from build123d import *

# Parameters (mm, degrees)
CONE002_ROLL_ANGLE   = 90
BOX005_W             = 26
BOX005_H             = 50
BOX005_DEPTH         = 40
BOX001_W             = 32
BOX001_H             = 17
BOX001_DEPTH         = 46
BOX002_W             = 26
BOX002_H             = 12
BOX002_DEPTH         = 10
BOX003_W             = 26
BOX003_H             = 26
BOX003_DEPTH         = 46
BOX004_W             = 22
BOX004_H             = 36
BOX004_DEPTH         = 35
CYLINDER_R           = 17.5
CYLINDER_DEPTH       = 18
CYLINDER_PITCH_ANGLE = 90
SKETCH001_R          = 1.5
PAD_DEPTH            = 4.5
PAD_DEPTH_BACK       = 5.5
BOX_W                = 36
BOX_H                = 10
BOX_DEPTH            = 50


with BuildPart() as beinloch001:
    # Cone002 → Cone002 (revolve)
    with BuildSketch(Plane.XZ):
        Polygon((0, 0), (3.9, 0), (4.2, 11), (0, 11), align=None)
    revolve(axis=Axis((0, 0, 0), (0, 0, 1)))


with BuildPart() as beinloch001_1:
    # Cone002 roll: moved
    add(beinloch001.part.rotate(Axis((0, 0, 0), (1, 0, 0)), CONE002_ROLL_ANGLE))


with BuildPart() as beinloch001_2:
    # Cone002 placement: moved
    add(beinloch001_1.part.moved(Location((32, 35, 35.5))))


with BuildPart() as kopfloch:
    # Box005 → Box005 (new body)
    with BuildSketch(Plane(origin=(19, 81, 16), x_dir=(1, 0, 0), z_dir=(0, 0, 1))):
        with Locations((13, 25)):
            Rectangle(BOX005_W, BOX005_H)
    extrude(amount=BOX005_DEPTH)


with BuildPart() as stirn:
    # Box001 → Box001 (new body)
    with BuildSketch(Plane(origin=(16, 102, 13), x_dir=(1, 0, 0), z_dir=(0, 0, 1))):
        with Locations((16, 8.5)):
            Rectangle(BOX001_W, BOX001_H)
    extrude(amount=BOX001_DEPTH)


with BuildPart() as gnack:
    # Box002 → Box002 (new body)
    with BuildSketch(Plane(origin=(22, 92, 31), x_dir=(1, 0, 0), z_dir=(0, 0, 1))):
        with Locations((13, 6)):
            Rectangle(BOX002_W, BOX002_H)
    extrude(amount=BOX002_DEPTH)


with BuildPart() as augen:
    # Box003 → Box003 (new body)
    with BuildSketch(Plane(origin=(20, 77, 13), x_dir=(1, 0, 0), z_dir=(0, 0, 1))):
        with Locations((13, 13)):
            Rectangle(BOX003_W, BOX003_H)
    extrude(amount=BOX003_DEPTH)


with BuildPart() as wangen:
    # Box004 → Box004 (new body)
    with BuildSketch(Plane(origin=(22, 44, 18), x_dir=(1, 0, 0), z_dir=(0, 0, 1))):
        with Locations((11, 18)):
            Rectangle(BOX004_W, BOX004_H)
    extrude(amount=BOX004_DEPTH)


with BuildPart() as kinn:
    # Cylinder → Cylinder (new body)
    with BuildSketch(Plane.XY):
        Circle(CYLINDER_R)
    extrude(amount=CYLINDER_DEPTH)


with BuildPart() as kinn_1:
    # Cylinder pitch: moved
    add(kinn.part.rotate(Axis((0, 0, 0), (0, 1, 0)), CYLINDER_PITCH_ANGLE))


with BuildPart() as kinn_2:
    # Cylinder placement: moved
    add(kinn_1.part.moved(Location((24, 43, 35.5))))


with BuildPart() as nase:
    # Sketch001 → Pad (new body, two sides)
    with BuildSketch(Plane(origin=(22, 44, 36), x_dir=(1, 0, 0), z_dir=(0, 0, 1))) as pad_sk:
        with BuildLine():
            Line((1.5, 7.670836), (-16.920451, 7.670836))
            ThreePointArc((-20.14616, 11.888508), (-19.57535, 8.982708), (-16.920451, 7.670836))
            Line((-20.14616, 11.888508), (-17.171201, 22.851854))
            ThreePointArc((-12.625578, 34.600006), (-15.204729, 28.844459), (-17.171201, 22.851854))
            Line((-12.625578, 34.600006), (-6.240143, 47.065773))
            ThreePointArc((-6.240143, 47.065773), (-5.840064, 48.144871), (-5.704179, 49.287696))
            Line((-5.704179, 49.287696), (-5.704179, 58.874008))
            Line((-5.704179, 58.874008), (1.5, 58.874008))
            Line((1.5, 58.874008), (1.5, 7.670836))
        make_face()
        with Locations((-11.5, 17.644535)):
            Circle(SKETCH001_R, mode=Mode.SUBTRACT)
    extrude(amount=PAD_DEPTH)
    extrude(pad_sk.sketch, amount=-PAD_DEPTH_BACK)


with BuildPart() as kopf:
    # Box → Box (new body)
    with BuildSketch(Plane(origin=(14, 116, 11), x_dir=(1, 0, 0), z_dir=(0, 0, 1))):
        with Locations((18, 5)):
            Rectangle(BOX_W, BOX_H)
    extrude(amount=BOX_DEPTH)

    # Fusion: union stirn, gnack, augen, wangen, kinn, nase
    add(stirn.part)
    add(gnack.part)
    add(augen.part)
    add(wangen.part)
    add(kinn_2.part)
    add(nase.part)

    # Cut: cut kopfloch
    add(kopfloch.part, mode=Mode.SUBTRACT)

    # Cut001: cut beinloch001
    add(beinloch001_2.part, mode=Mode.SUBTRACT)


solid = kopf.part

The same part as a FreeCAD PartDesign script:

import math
import FreeCAD as App
import Part
import Sketcher

doc = App.newDocument("Part")
params = doc.addObject("Spreadsheet::Sheet", "Params")
for row, (alias, value) in enumerate([
    ("sketch1_height", "11 mm"),
    ("sketch1_width", "3.9 mm"),
    ("sketch1_width2", "4.2 mm"),
    ("revolution_angle", "360 deg"),
    ("sketch2_width", "26 mm"),
    ("sketch2_height", "50 mm"),
    ("pad1_length", "40 mm"),
    ("sketch3_width", "32 mm"),
    ("sketch3_height", "17 mm"),
    ("pad2_length", "46 mm"),
    ("sketch4_width", "26 mm"),
    ("sketch4_height", "12 mm"),
    ("pad3_length", "10 mm"),
    ("sketch5_width", "26 mm"),
    ("pad4_length", "46 mm"),
    ("sketch6_width", "22 mm"),
    ("sketch6_height", "36 mm"),
    ("pad5_length", "35 mm"),
    ("sketch7_diameter", "35 mm"),
    ("pad6_length", "18 mm"),
    ("sketch8_diameter", "3 mm"),
    ("pad7_length", "4.5 mm"),
    ("pad7_length2", "5.5 mm"),
    ("sketch9_width", "36 mm"),
    ("sketch9_height", "10 mm"),
    ("pad8_length", "50 mm"),
], start=1):
    params.set(f"A{row}", alias)
    params.set(f"B{row}", "=" + value)
    params.setAlias(f"B{row}", alias)

body = doc.addObject("PartDesign::Body", "Body")

sketch1 = body.newObject("Sketcher::SketchObject", "Sketch")
sketch1.AttachmentSupport = (doc.getObject("XZ_Plane"), [""])
sketch1.MapMode = "FlatFace"
sketch1.addGeometry(Part.LineSegment(App.Vector(0, 0, 0), App.Vector(3.9, 0, 0)), False)
sketch1.addGeometry(Part.LineSegment(App.Vector(3.9, 0, 0), App.Vector(4.2, 11, 0)), False)
sketch1.addGeometry(Part.LineSegment(App.Vector(4.2, 11, 0), App.Vector(0, 11, 0)), False)
sketch1.addGeometry(Part.LineSegment(App.Vector(0, 11, 0), App.Vector(0, 0, 0)), False)
sketch1.addConstraint(Sketcher.Constraint("Coincident", 0, 2, 1, 1))
sketch1.addConstraint(Sketcher.Constraint("Coincident", 1, 2, 2, 1))
sketch1.addConstraint(Sketcher.Constraint("Coincident", 2, 2, 3, 1))
sketch1.addConstraint(Sketcher.Constraint("Coincident", 3, 2, 0, 1))
sketch1.addConstraint(Sketcher.Constraint("Horizontal", 0))
sketch1.addConstraint(Sketcher.Constraint("Horizontal", 2))
sketch1.addConstraint(Sketcher.Constraint("Vertical", 3))
sketch1.addConstraint(Sketcher.Constraint("Coincident", 3, 2, -1, 1))
sketch1.addConstraint(Sketcher.Constraint("DistanceY", 3, 2, 3, 1, 11.0))
sketch1.addConstraint(Sketcher.Constraint("DistanceX", 0, 1, 0, 2, 3.9))
sketch1.addConstraint(Sketcher.Constraint("DistanceX", 2, 2, 2, 1, 4.2))
sketch1.setExpression("Constraints[8]", "Params.sketch1_height")
sketch1.setExpression("Constraints[9]", "Params.sketch1_width")
sketch1.setExpression("Constraints[10]", "Params.sketch1_width2")
revolution = body.newObject("PartDesign::Revolution", "Revolution")
revolution.Profile = sketch1
revolution.ReferenceAxis = (sketch1, ["V_Axis"])
revolution.setExpression("Angle", "Params.revolution_angle")
body2 = doc.addObject("PartDesign::Body", "Body001")
doc.recompute()

body.Placement = App.Placement(App.Vector(0, 0, 0), App.Rotation(App.Vector(1, 0, 0), 90))
boolean = body2.newObject("PartDesign::Boolean", "Boolean")
boolean.Type = "Fuse"
boolean.addObjects([body])
body3 = doc.addObject("PartDesign::Body", "Body002")
doc.recompute()

body2.Placement = App.Placement(App.Vector(32, 35, 35.5), App.Rotation(App.Vector(0, 0, 1), 0))
boolean2 = body3.newObject("PartDesign::Boolean", "Boolean001")
boolean2.Type = "Fuse"
boolean2.addObjects([body2])
body4 = doc.addObject("PartDesign::Body", "Body003")

sketch2 = body4.newObject("Sketcher::SketchObject", "Sketch001")
sketch2.AttachmentSupport = (doc.getObject("XY_Plane003"), [""])
sketch2.MapMode = "FlatFace"
sketch2.AttachmentOffset = App.Placement(App.Vector(0, 0, 16), App.Rotation())
sketch2.addGeometry(Part.LineSegment(App.Vector(19, 131, 0), App.Vector(19, 81, 0)), False)
sketch2.addGeometry(Part.LineSegment(App.Vector(19, 81, 0), App.Vector(45, 81, 0)), False)
sketch2.addGeometry(Part.LineSegment(App.Vector(45, 81, 0), App.Vector(45, 131, 0)), False)
sketch2.addGeometry(Part.LineSegment(App.Vector(45, 131, 0), App.Vector(19, 131, 0)), False)
sketch2.addConstraint(Sketcher.Constraint("Coincident", 0, 2, 1, 1))
sketch2.addConstraint(Sketcher.Constraint("Coincident", 1, 2, 2, 1))
sketch2.addConstraint(Sketcher.Constraint("Coincident", 2, 2, 3, 1))
sketch2.addConstraint(Sketcher.Constraint("Coincident", 3, 2, 0, 1))
sketch2.addConstraint(Sketcher.Constraint("Vertical", 0))
sketch2.addConstraint(Sketcher.Constraint("Horizontal", 1))
sketch2.addConstraint(Sketcher.Constraint("Vertical", 2))
sketch2.addConstraint(Sketcher.Constraint("Horizontal", 3))
sketch2.addConstraint(Sketcher.Constraint("DistanceX", 1, 1, 1, 2, 26.0))
sketch2.addConstraint(Sketcher.Constraint("DistanceY", 0, 2, 0, 1, 50.0))
sketch2.addConstraint(Sketcher.Constraint("DistanceX", -1, 1, 0, 2, 19.0))
sketch2.addConstraint(Sketcher.Constraint("DistanceY", -1, 1, 0, 2, 81.0))
sketch2.setExpression("Constraints[8]", "Params.sketch2_width")
sketch2.setExpression("Constraints[9]", "Params.sketch2_height")
pad1 = body4.newObject("PartDesign::Pad", "Pad")
pad1.Profile = sketch2
pad1.setExpression("Length", "Params.pad1_length")
body5 = doc.addObject("PartDesign::Body", "Body004")

sketch3 = body5.newObject("Sketcher::SketchObject", "Sketch002")
sketch3.AttachmentSupport = (doc.getObject("XY_Plane004"), [""])
sketch3.MapMode = "FlatFace"
sketch3.AttachmentOffset = App.Placement(App.Vector(0, 0, 13), App.Rotation())
sketch3.addGeometry(Part.LineSegment(App.Vector(16, 119, 0), App.Vector(16, 102, 0)), False)
sketch3.addGeometry(Part.LineSegment(App.Vector(16, 102, 0), App.Vector(48, 102, 0)), False)
sketch3.addGeometry(Part.LineSegment(App.Vector(48, 102, 0), App.Vector(48, 119, 0)), False)
sketch3.addGeometry(Part.LineSegment(App.Vector(48, 119, 0), App.Vector(16, 119, 0)), False)
sketch3.addConstraint(Sketcher.Constraint("Coincident", 0, 2, 1, 1))
sketch3.addConstraint(Sketcher.Constraint("Coincident", 1, 2, 2, 1))
sketch3.addConstraint(Sketcher.Constraint("Coincident", 2, 2, 3, 1))
sketch3.addConstraint(Sketcher.Constraint("Coincident", 3, 2, 0, 1))
sketch3.addConstraint(Sketcher.Constraint("Vertical", 0))
sketch3.addConstraint(Sketcher.Constraint("Horizontal", 1))
sketch3.addConstraint(Sketcher.Constraint("Vertical", 2))
sketch3.addConstraint(Sketcher.Constraint("Horizontal", 3))
sketch3.addConstraint(Sketcher.Constraint("DistanceX", 1, 1, 1, 2, 32.0))
sketch3.addConstraint(Sketcher.Constraint("DistanceY", 0, 2, 0, 1, 17.0))
sketch3.addConstraint(Sketcher.Constraint("DistanceX", -1, 1, 0, 2, 16.0))
sketch3.addConstraint(Sketcher.Constraint("DistanceY", -1, 1, 0, 2, 102.0))
sketch3.setExpression("Constraints[8]", "Params.sketch3_width")
sketch3.setExpression("Constraints[9]", "Params.sketch3_height")
pad2 = body5.newObject("PartDesign::Pad", "Pad001")
pad2.Profile = sketch3
pad2.setExpression("Length", "Params.pad2_length")
body6 = doc.addObject("PartDesign::Body", "Body005")

sketch4 = body6.newObject("Sketcher::SketchObject", "Sketch003")
sketch4.AttachmentSupport = (doc.getObject("XY_Plane005"), [""])
sketch4.MapMode = "FlatFace"
sketch4.AttachmentOffset = App.Placement(App.Vector(0, 0, 31), App.Rotation())
sketch4.addGeometry(Part.LineSegment(App.Vector(22, 104, 0), App.Vector(22, 92, 0)), False)
sketch4.addGeometry(Part.LineSegment(App.Vector(22, 92, 0), App.Vector(48, 92, 0)), False)
sketch4.addGeometry(Part.LineSegment(App.Vector(48, 92, 0), App.Vector(48, 104, 0)), False)
sketch4.addGeometry(Part.LineSegment(App.Vector(48, 104, 0), App.Vector(22, 104, 0)), False)
sketch4.addConstraint(Sketcher.Constraint("Coincident", 0, 2, 1, 1))
sketch4.addConstraint(Sketcher.Constraint("Coincident", 1, 2, 2, 1))
sketch4.addConstraint(Sketcher.Constraint("Coincident", 2, 2, 3, 1))
sketch4.addConstraint(Sketcher.Constraint("Coincident", 3, 2, 0, 1))
sketch4.addConstraint(Sketcher.Constraint("Vertical", 0))
sketch4.addConstraint(Sketcher.Constraint("Horizontal", 1))
sketch4.addConstraint(Sketcher.Constraint("Vertical", 2))
sketch4.addConstraint(Sketcher.Constraint("Horizontal", 3))
sketch4.addConstraint(Sketcher.Constraint("DistanceX", 1, 1, 1, 2, 26.0))
sketch4.addConstraint(Sketcher.Constraint("DistanceY", 0, 2, 0, 1, 12.0))
sketch4.addConstraint(Sketcher.Constraint("DistanceX", -1, 1, 0, 2, 22.0))
sketch4.addConstraint(Sketcher.Constraint("DistanceY", -1, 1, 0, 2, 92.0))
sketch4.setExpression("Constraints[8]", "Params.sketch4_width")
sketch4.setExpression("Constraints[9]", "Params.sketch4_height")
pad3 = body6.newObject("PartDesign::Pad", "Pad002")
pad3.Profile = sketch4
pad3.setExpression("Length", "Params.pad3_length")
body7 = doc.addObject("PartDesign::Body", "Body006")

sketch5 = body7.newObject("Sketcher::SketchObject", "Sketch004")
sketch5.AttachmentSupport = (doc.getObject("XY_Plane006"), [""])
sketch5.MapMode = "FlatFace"
sketch5.AttachmentOffset = App.Placement(App.Vector(0, 0, 13), App.Rotation())
sketch5.addGeometry(Part.LineSegment(App.Vector(20, 103, 0), App.Vector(20, 77, 0)), False)
sketch5.addGeometry(Part.LineSegment(App.Vector(20, 77, 0), App.Vector(46, 77, 0)), False)
sketch5.addGeometry(Part.LineSegment(App.Vector(46, 77, 0), App.Vector(46, 103, 0)), False)
sketch5.addGeometry(Part.LineSegment(App.Vector(46, 103, 0), App.Vector(20, 103, 0)), False)
sketch5.addConstraint(Sketcher.Constraint("Coincident", 0, 2, 1, 1))
sketch5.addConstraint(Sketcher.Constraint("Coincident", 1, 2, 2, 1))
sketch5.addConstraint(Sketcher.Constraint("Coincident", 2, 2, 3, 1))
sketch5.addConstraint(Sketcher.Constraint("Coincident", 3, 2, 0, 1))
sketch5.addConstraint(Sketcher.Constraint("Vertical", 0))
sketch5.addConstraint(Sketcher.Constraint("Horizontal", 1))
sketch5.addConstraint(Sketcher.Constraint("Vertical", 2))
sketch5.addConstraint(Sketcher.Constraint("Horizontal", 3))
sketch5.addConstraint(Sketcher.Constraint("Equal", 3, 0))
sketch5.addConstraint(Sketcher.Constraint("DistanceX", 1, 1, 1, 2, 26.0))
sketch5.addConstraint(Sketcher.Constraint("DistanceX", -1, 1, 0, 2, 20.0))
sketch5.addConstraint(Sketcher.Constraint("DistanceY", -1, 1, 0, 2, 77.0))
sketch5.setExpression("Constraints[9]", "Params.sketch5_width")
pad4 = body7.newObject("PartDesign::Pad", "Pad003")
pad4.Profile = sketch5
pad4.setExpression("Length", "Params.pad4_length")
body8 = doc.addObject("PartDesign::Body", "Body007")

sketch6 = body8.newObject("Sketcher::SketchObject", "Sketch005")
sketch6.AttachmentSupport = (doc.getObject("XY_Plane007"), [""])
sketch6.MapMode = "FlatFace"
sketch6.AttachmentOffset = App.Placement(App.Vector(0, 0, 18), App.Rotation())
sketch6.addGeometry(Part.LineSegment(App.Vector(22, 80, 0), App.Vector(22, 44, 0)), False)
sketch6.addGeometry(Part.LineSegment(App.Vector(22, 44, 0), App.Vector(44, 44, 0)), False)
sketch6.addGeometry(Part.LineSegment(App.Vector(44, 44, 0), App.Vector(44, 80, 0)), False)
sketch6.addGeometry(Part.LineSegment(App.Vector(44, 80, 0), App.Vector(22, 80, 0)), False)
sketch6.addConstraint(Sketcher.Constraint("Coincident", 0, 2, 1, 1))
sketch6.addConstraint(Sketcher.Constraint("Coincident", 1, 2, 2, 1))
sketch6.addConstraint(Sketcher.Constraint("Coincident", 2, 2, 3, 1))
sketch6.addConstraint(Sketcher.Constraint("Coincident", 3, 2, 0, 1))
sketch6.addConstraint(Sketcher.Constraint("Vertical", 0))
sketch6.addConstraint(Sketcher.Constraint("Horizontal", 1))
sketch6.addConstraint(Sketcher.Constraint("Vertical", 2))
sketch6.addConstraint(Sketcher.Constraint("Horizontal", 3))
sketch6.addConstraint(Sketcher.Constraint("DistanceX", 1, 1, 1, 2, 22.0))
sketch6.addConstraint(Sketcher.Constraint("DistanceY", 0, 2, 0, 1, 36.0))
sketch6.addConstraint(Sketcher.Constraint("DistanceX", -1, 1, 0, 2, 22.0))
sketch6.addConstraint(Sketcher.Constraint("DistanceY", -1, 1, 0, 2, 44.0))
sketch6.setExpression("Constraints[8]", "Params.sketch6_width")
sketch6.setExpression("Constraints[9]", "Params.sketch6_height")
pad5 = body8.newObject("PartDesign::Pad", "Pad004")
pad5.Profile = sketch6
pad5.setExpression("Length", "Params.pad5_length")
body9 = doc.addObject("PartDesign::Body", "Body008")

sketch7 = body9.newObject("Sketcher::SketchObject", "Sketch006")
sketch7.AttachmentSupport = (doc.getObject("XY_Plane008"), [""])
sketch7.MapMode = "FlatFace"
sketch7.addGeometry(Part.Circle(App.Vector(0, 0, 0), App.Vector(0, 0, 1), 17.5), False)
sketch7.addConstraint(Sketcher.Constraint("Coincident", 0, 3, -1, 1))
sketch7.addConstraint(Sketcher.Constraint("Diameter", 0, 35.0))
sketch7.setExpression("Constraints[1]", "Params.sketch7_diameter")
pad6 = body9.newObject("PartDesign::Pad", "Pad005")
pad6.Profile = sketch7
pad6.setExpression("Length", "Params.pad6_length")
body10 = doc.addObject("PartDesign::Body", "Body009")
doc.recompute()

body9.Placement = App.Placement(App.Vector(0, 0, 0), App.Rotation(App.Vector(0, 1, 0), 90))
boolean3 = body10.newObject("PartDesign::Boolean", "Boolean002")
boolean3.Type = "Fuse"
boolean3.addObjects([body9])
body11 = doc.addObject("PartDesign::Body", "Body010")
doc.recompute()

body10.Placement = App.Placement(App.Vector(24, 43, 35.5), App.Rotation(App.Vector(0, 0, 1), 0))
boolean4 = body11.newObject("PartDesign::Boolean", "Boolean003")
boolean4.Type = "Fuse"
boolean4.addObjects([body10])
body12 = doc.addObject("PartDesign::Body", "Body011")

sketch8 = body12.newObject("Sketcher::SketchObject", "Sketch007")
sketch8.AttachmentSupport = (doc.getObject("XY_Plane011"), [""])
sketch8.MapMode = "FlatFace"
sketch8.AttachmentOffset = App.Placement(App.Vector(0, 0, 36), App.Rotation())
sketch8.addGeometry(Part.LineSegment(App.Vector(5.079549, 51.670836, 0), App.Vector(23.5, 51.670836, 0)), False)
sketch8.addGeometry(Part.LineSegment(App.Vector(23.5, 51.670836, 0), App.Vector(23.5, 102.874008, 0)), False)
sketch8.addGeometry(Part.LineSegment(App.Vector(23.5, 102.874008, 0), App.Vector(16.295821, 102.874008, 0)), False)
sketch8.addGeometry(Part.LineSegment(App.Vector(16.295821, 102.874008, 0), App.Vector(16.295821, 93.287696, 0)), False)
sketch8.addGeometry(Part.ArcOfCircle(Part.Circle(App.Vector(11.422183, 93.287694, 0), App.Vector(0, 0, 1), 4.873638), math.radians(-27.12324), math.radians(0.000026)), False)
sketch8.addGeometry(Part.LineSegment(App.Vector(15.759857, 91.065773, 0), App.Vector(9.374422, 78.600006, 0)), False)
sketch8.addGeometry(Part.ArcOfCircle(Part.Circle(App.Vector(63.266336, 50.99454, 0), App.Vector(0, 0, 1), 60.550807), math.radians(152.876768), math.radians(164.818093)), False)
sketch8.addGeometry(Part.LineSegment(App.Vector(4.828799, 66.851854, 0), App.Vector(1.85384, 55.888508, 0)), False)
sketch8.addGeometry(Part.ArcOfCircle(Part.Circle(App.Vector(5.079549, 55.013196, 0), App.Vector(0, 0, 1), 3.34236), math.radians(164.818092), math.radians(270)), False)
sketch8.addGeometry(Part.Circle(App.Vector(10.5, 61.644535, 0), App.Vector(0, 0, 1), 1.5), False)
sketch8.addConstraint(Sketcher.Constraint("Coincident", 0, 2, 1, 1))
sketch8.addConstraint(Sketcher.Constraint("Coincident", 1, 2, 2, 1))
sketch8.addConstraint(Sketcher.Constraint("Coincident", 2, 2, 3, 1))
sketch8.addConstraint(Sketcher.Constraint("Tangent", 3, 2, 4, 2))
sketch8.addConstraint(Sketcher.Constraint("Tangent", 4, 1, 5, 1))
sketch8.addConstraint(Sketcher.Constraint("Tangent", 5, 2, 6, 1))
sketch8.addConstraint(Sketcher.Constraint("Tangent", 6, 2, 7, 1))
sketch8.addConstraint(Sketcher.Constraint("Tangent", 7, 2, 8, 1))
sketch8.addConstraint(Sketcher.Constraint("Tangent", 8, 2, 0, 1))
sketch8.addConstraint(Sketcher.Constraint("Horizontal", 0))
sketch8.addConstraint(Sketcher.Constraint("Vertical", 1))
sketch8.addConstraint(Sketcher.Constraint("Horizontal", 2))
sketch8.addConstraint(Sketcher.Constraint("Vertical", 3))
sketch8.addConstraint(Sketcher.Constraint("Diameter", 9, 3.0))
sketch8.addConstraint(Sketcher.Constraint("DistanceX", 9, 3, 0, 2, 13.0))
sketch8.addConstraint(Sketcher.Constraint("DistanceX", -1, 1, 9, 3, 10.5))
sketch8.addConstraint(Sketcher.Constraint("Radius", 4, 4.873638))
sketch8.addConstraint(Sketcher.Constraint("Radius", 8, 3.34236))
sketch8.addConstraint(Sketcher.Constraint("Radius", 6, 60.550807))
sketch8.addConstraint(Sketcher.Constraint("DistanceX", 0, 1, 0, 2, 18.420451))
sketch8.addConstraint(Sketcher.Constraint("DistanceX", 2, 2, 2, 1, 7.204179))
sketch8.addConstraint(Sketcher.Constraint("DistanceX", -1, 1, 6, 2, 4.828799))
sketch8.addConstraint(Sketcher.Constraint("DistanceY", 0, 2, 9, 3, 9.973699))
sketch8.addConstraint(Sketcher.Constraint("DistanceY", 8, 3, 3, 2, 38.2745))
sketch8.addConstraint(Sketcher.Constraint("DistanceX", 5, 2, 3, 2, 6.921399))
sketch8.addConstraint(Sketcher.Constraint("DistanceY", 1, 1, 1, 2, 51.203172))
sketch8.addConstraint(Sketcher.Constraint("DistanceY", -1, 1, 6, 3, 50.99454))
sketch8.setExpression("Constraints[13]", "Params.sketch8_diameter")
pad7 = body12.newObject("PartDesign::Pad", "Pad006")
pad7.Profile = sketch8
pad7.Type = "TwoLengths"
pad7.setExpression("Length", "Params.pad7_length")
pad7.setExpression("Length2", "Params.pad7_length2")
body13 = doc.addObject("PartDesign::Body", "Body012")

sketch9 = body13.newObject("Sketcher::SketchObject", "Sketch008")
sketch9.AttachmentSupport = (doc.getObject("XY_Plane012"), [""])
sketch9.MapMode = "FlatFace"
sketch9.AttachmentOffset = App.Placement(App.Vector(0, 0, 11), App.Rotation())
sketch9.addGeometry(Part.LineSegment(App.Vector(14, 126, 0), App.Vector(14, 116, 0)), False)
sketch9.addGeometry(Part.LineSegment(App.Vector(14, 116, 0), App.Vector(50, 116, 0)), False)
sketch9.addGeometry(Part.LineSegment(App.Vector(50, 116, 0), App.Vector(50, 126, 0)), False)
sketch9.addGeometry(Part.LineSegment(App.Vector(50, 126, 0), App.Vector(14, 126, 0)), False)
sketch9.addConstraint(Sketcher.Constraint("Coincident", 0, 2, 1, 1))
sketch9.addConstraint(Sketcher.Constraint("Coincident", 1, 2, 2, 1))
sketch9.addConstraint(Sketcher.Constraint("Coincident", 2, 2, 3, 1))
sketch9.addConstraint(Sketcher.Constraint("Coincident", 3, 2, 0, 1))
sketch9.addConstraint(Sketcher.Constraint("Vertical", 0))
sketch9.addConstraint(Sketcher.Constraint("Horizontal", 1))
sketch9.addConstraint(Sketcher.Constraint("Vertical", 2))
sketch9.addConstraint(Sketcher.Constraint("Horizontal", 3))
sketch9.addConstraint(Sketcher.Constraint("DistanceX", 1, 1, 1, 2, 36.0))
sketch9.addConstraint(Sketcher.Constraint("DistanceY", 0, 2, 0, 1, 10.0))
sketch9.addConstraint(Sketcher.Constraint("DistanceX", -1, 1, 0, 2, 14.0))
sketch9.addConstraint(Sketcher.Constraint("DistanceY", -1, 1, 0, 2, 116.0))
sketch9.setExpression("Constraints[8]", "Params.sketch9_width")
sketch9.setExpression("Constraints[9]", "Params.sketch9_height")
pad8 = body13.newObject("PartDesign::Pad", "Pad007")
pad8.Profile = sketch9
pad8.setExpression("Length", "Params.pad8_length")
doc.recompute()

boolean5 = body13.newObject("PartDesign::Boolean", "Boolean004")
boolean5.Type = "Fuse"
boolean5.addObjects([body5])
doc.recompute()

boolean6 = body13.newObject("PartDesign::Boolean", "Boolean005")
boolean6.Type = "Fuse"
boolean6.addObjects([body6])
doc.recompute()

boolean7 = body13.newObject("PartDesign::Boolean", "Boolean006")
boolean7.Type = "Fuse"
boolean7.addObjects([body7])
doc.recompute()

boolean8 = body13.newObject("PartDesign::Boolean", "Boolean007")
boolean8.Type = "Fuse"
boolean8.addObjects([body8])
doc.recompute()

boolean9 = body13.newObject("PartDesign::Boolean", "Boolean008")
boolean9.Type = "Fuse"
boolean9.addObjects([body11])
doc.recompute()

boolean10 = body13.newObject("PartDesign::Boolean", "Boolean009")
boolean10.Type = "Fuse"
boolean10.addObjects([body12])
doc.recompute()

boolean11 = body13.newObject("PartDesign::Boolean", "Boolean010")
boolean11.Type = "Cut"
boolean11.addObjects([body4])
doc.recompute()

boolean12 = body13.newObject("PartDesign::Boolean", "Boolean011")
boolean12.Type = "Cut"
boolean12.addObjects([body3])

doc.recompute()
